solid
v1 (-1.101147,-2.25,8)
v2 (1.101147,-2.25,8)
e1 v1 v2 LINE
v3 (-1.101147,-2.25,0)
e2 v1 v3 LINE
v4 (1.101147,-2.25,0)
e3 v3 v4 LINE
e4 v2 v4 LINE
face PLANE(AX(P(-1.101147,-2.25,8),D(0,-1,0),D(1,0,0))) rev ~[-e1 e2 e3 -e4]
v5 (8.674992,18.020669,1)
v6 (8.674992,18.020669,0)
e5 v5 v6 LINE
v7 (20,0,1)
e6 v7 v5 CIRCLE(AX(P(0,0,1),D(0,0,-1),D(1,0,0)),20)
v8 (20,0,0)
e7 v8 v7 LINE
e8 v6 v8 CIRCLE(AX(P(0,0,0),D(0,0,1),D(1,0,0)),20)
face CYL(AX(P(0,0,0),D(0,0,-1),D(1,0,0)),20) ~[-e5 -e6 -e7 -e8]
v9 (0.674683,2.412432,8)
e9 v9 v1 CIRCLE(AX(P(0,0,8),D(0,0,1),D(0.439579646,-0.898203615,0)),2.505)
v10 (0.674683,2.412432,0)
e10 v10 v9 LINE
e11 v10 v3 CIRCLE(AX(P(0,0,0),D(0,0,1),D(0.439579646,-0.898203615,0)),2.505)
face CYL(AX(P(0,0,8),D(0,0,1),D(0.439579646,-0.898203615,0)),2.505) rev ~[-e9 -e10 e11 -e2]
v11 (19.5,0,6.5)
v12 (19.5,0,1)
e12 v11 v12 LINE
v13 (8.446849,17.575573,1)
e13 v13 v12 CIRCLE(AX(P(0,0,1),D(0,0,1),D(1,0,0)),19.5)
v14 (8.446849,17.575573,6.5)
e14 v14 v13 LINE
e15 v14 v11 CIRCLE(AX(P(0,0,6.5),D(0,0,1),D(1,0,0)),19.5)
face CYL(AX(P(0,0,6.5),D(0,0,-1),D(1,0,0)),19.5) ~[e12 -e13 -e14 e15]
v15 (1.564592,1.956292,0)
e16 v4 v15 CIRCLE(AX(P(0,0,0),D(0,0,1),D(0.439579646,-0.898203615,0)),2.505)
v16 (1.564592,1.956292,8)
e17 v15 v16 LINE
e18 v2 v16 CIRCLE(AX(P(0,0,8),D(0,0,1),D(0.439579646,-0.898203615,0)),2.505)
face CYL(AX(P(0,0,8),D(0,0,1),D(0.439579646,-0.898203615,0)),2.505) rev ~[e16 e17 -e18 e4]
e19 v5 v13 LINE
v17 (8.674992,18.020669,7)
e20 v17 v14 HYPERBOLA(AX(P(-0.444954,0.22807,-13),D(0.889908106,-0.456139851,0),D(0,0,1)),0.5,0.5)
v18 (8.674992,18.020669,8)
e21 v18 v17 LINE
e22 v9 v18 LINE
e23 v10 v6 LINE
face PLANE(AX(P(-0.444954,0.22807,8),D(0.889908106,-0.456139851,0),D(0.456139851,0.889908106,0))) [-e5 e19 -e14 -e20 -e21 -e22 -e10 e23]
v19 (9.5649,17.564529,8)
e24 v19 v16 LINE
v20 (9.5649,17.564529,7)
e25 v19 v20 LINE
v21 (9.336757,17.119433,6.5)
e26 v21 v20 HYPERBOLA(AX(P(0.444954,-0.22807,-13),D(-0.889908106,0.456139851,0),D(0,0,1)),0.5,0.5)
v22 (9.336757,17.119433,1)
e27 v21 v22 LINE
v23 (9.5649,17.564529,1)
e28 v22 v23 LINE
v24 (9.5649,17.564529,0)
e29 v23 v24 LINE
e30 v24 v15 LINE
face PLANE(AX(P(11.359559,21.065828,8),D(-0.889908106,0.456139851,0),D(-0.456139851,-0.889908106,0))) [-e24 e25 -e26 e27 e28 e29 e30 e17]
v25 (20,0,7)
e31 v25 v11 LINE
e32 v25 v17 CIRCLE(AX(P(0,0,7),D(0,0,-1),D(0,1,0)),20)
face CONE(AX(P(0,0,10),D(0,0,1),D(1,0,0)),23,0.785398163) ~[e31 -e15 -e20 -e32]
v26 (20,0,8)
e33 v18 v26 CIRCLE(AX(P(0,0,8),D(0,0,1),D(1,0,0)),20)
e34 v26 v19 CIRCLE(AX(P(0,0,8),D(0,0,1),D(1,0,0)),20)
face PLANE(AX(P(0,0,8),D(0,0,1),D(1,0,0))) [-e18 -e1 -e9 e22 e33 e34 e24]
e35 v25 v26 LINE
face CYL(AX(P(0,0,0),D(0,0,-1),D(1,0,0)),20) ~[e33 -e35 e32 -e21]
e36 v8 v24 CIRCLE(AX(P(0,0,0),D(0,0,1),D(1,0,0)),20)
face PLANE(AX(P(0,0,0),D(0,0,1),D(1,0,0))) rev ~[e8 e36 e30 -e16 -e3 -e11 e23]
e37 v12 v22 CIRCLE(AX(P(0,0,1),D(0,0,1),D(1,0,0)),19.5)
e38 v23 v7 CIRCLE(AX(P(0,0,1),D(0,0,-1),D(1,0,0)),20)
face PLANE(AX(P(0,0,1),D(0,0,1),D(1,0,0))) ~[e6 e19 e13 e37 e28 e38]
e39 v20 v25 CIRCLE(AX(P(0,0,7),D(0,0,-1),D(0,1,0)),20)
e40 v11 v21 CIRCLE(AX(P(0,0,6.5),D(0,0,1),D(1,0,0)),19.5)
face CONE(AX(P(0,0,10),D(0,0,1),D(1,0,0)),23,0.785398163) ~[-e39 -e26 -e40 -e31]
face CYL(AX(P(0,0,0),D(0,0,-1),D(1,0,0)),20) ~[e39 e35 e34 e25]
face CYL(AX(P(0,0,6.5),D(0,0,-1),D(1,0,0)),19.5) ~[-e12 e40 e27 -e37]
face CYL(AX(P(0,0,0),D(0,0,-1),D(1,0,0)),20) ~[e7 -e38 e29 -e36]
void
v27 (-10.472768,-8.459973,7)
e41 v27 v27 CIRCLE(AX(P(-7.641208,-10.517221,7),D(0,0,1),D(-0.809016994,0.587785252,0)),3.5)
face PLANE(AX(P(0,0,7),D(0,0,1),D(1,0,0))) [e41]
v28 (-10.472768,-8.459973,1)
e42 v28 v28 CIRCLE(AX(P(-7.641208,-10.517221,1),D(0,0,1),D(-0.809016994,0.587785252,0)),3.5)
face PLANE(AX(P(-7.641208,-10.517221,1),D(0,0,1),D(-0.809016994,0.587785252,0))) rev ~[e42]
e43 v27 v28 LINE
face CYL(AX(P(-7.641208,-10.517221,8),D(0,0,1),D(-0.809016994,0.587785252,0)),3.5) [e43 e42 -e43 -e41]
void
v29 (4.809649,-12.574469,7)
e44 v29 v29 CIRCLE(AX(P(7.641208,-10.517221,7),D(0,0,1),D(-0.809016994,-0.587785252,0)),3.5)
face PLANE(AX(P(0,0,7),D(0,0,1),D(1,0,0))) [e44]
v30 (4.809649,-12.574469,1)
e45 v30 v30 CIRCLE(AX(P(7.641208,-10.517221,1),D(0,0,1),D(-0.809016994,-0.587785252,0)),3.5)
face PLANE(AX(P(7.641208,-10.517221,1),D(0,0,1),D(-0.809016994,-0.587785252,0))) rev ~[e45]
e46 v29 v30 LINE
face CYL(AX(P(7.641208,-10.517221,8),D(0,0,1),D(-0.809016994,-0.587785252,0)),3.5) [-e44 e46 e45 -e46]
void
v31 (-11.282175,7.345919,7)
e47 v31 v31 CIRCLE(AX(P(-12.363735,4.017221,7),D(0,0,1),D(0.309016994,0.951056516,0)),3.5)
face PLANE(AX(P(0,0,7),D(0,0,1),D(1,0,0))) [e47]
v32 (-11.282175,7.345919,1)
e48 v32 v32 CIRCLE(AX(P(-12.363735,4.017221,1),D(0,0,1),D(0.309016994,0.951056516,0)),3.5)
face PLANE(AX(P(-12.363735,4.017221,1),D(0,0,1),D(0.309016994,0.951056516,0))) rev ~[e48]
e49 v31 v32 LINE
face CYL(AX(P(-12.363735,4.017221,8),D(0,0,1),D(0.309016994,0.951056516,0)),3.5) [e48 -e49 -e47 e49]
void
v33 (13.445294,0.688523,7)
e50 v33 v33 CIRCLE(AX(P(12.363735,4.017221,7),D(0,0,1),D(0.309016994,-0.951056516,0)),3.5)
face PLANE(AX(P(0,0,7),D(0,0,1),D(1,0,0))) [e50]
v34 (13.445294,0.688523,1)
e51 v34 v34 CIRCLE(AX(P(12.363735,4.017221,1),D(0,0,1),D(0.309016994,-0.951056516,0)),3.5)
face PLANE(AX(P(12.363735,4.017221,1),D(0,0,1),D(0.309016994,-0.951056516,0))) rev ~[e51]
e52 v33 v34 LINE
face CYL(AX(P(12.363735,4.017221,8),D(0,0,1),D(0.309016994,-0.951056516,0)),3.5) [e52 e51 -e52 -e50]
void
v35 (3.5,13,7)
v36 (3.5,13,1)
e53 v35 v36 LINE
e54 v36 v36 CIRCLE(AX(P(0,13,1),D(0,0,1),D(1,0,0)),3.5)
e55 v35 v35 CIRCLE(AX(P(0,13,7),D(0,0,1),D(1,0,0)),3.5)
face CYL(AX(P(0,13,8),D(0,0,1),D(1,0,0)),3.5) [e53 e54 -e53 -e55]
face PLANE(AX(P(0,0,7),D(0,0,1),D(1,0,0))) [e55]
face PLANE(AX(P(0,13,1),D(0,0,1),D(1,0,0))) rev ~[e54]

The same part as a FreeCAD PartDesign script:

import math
import FreeCAD as App
import Part
import Sketcher
from FreeCAD import Vector
Q = App.Units.Quantity


def add_polygon(sketch, points):
    """Adds a closed chain of lines whose ends are joined by coincident constraints."""
    first, n = sketch.GeometryCount, len(points)
    for a, b in zip(points, points[1:] + points[:1]):
        sketch.addGeometry(Part.LineSegment(App.Vector(*a, 0), App.Vector(*b, 0)), False)
    for i in range(n):
        sketch.addConstraint(Sketcher.Constraint("Coincident", first + i, 2, first + (i + 1) % n, 1))

doc = App.newDocument("Part")
params = doc.addObject("Spreadsheet::Sheet", "Params")
for row, (alias, value) in enumerate([
    ("sketch1_diameter", "40 mm"),
    ("pad1_length", "8 mm"),
    ("sketch3_height", "9 mm"),
    ("sketch3_width", "3.5 mm"),
    ("groove_angle", "360 deg"),
    ("sketch4_diameter", "7 mm"),
    ("pocket2_length", "7 mm"),
    ("pocket3_length", "0.5 mm"),
    ("pad2_length", "1 mm"),
    ("sketch7_length", "1 mm"),
], start=1):
    params.set(f"A{row}", alias)
    params.set(f"B{row}", "=" + value)
    params.setAlias(f"B{row}", alias)

body = doc.addObject("PartDesign::Body", "Body")

# Sketch on XY plane
sketch1 = body.newObject("Sketcher::SketchObject", "Sketch")
sketch1.AttachmentSupport = (doc.getObject("XY_Plane"), [""])
sketch1.MapMode = "FlatFace"
sketch1.addGeometry(Part.Circle(Vector(0, 0, 0), Vector(0, 0, 1), 20), False)
sketch1.addConstraint([
    Sketcher.Constraint("Coincident", 0, 3, -1, 1),
    Sketcher.Constraint("Diameter", 0, Q("40 mm")),
])
sketch1.setExpression("Constraints[1]", "Params.sketch1_diameter")
pad1 = body.newObject("PartDesign::Pad", "Pad")
pad1.Profile = sketch1
pad1.setExpression("Length", "Params.pad1_length")

# Sketch on XY plane
sketch2 = body.newObject("Sketcher::SketchObject", "Sketch001")
sketch2.AttachmentSupport = (doc.getObject("XY_Plane"), [""])
sketch2.MapMode = "FlatFace"
sketch2.AttachmentOffset = App.Placement(Vector(0, 0, 8), App.Rotation())
sketch2.addGeometry([
    Part.ArcOfCircle(Part.Circle(Vector(0, 0, 0), Vector(0, 0, 1), 2.505), math.radians(-63.922936), math.radians(243.922936)),
    Part.LineSegment(Vector(-1.101147, -2.25, 0), Vector(1.101147, -2.25, 0)),
], False)
sketch2.addConstraint([
    Sketcher.Constraint("Coincident", 0, 1, 1, 2),
    Sketcher.Constraint("Coincident", 1, 1, 0, 2),
    Sketcher.Constraint("Horizontal", 1),
    Sketcher.Constraint("Coincident", 0, 3, -1, 1),
    Sketcher.Constraint("Radius", 0, Q("2.505 mm")),
    Sketcher.Constraint("DistanceY", 0, 1, -1, 1, Q("2.25 mm")),
])
pocket1 = body.newObject("PartDesign::Pocket", "Pocket")
pocket1.Profile = sketch2
pocket1.Type = "ThroughAll"

# Sketch on XZ plane
sketch3 = body.newObject("Sketcher::SketchObject", "Sketch002")
sketch3.AttachmentSupport = (doc.getObject("XZ_Plane"), [""])
sketch3.MapMode = "FlatFace"
add_polygon(sketch3, [(19.5, 6.5), (19.5, 1), (23, 1), (23, 10)])  # lines 0-3
sketch3.addConstraint([
    Sketcher.Constraint("Vertical", 0),
    Sketcher.Constraint("Horizontal", 1),
    Sketcher.Constraint("Vertical", 2),
    Sketcher.Constraint("DistanceY", 2, 1, 2, 2, Q("9 mm")),
    Sketcher.Constraint("Angle", 3, Q("-135 deg")),
    Sketcher.Constraint("DistanceX", 1, 1, 1, 2, Q("3.5 mm")),
    Sketcher.Constraint("DistanceY", -1, 1, 0, 2, Q("1 mm")),
    Sketcher.Constraint("DistanceX", -1, 1, 1, 2, Q("23 mm")),
])
sketch3.setExpression("Constraints[7]", "Params.sketch3_height")
sketch3.setExpression("Constraints[9]", "Params.sketch3_width")
groove = body.newObject("PartDesign::Groove", "Groove")
groove.Profile = sketch3
groove.ReferenceAxis = (sketch3, ["V_Axis"])
groove.setExpression("Angle", "Params.groove_angle")

# Sketch on XY plane
sketch4 = body.newObject("Sketcher::SketchObject", "Sketch003")
sketch4.AttachmentSupport = (doc.getObject("XY_Plane"), [""])
sketch4.MapMode = "FlatFace"
sketch4.AttachmentOffset = App.Placement(Vector(0, 0, 8), App.Rotation())
sketch4.addGeometry(Part.Circle(Vector(0, 13, 0), Vector(0, 0, 1), 3.5), False)
sketch4.addConstraint([
    Sketcher.Constraint("PointOnObject", 0, 3, -2),
    Sketcher.Constraint("Diameter", 0, Q("7 mm")),
    Sketcher.Constraint("DistanceY", -1, 1, 0, 3, Q("13 mm")),
])
sketch4.setExpression("Constraints[1]", "Params.sketch4_diameter")
pocket2 = body.newObject("PartDesign::Pocket", "Pocket001")
pocket2.Profile = sketch4
pocket2.setExpression("Length", "Params.pocket2_length")
doc.recompute()

polarpattern = body.newObject("PartDesign::PolarPattern", "PolarPattern")
polarpattern.Originals = [pocket2]
polarpattern.Axis = (doc.getObject("Z_Axis"), [""])
polarpattern.Angle = 360
polarpattern.Occurrences = 5
body.Tip = polarpattern

# Sketch on XY plane
sketch5 = body.newObject("Sketcher::SketchObject", "Sketch004")
sketch5.AttachmentSupport = (doc.getObject("XY_Plane"), [""])
sketch5.MapMode = "FlatFace"
sketch5.AttachmentOffset = App.Placement(Vector(0, 0, 8), App.Rotation())
sketch5.addGeometry(Part.Circle(Vector(-5.881012, 7.168965, 0), Vector(0, 0, 1), 1.995724), False)
sketch5.addConstraint([
    Sketcher.Constraint("Diameter", 0, Q("3.991448 mm")),
    Sketcher.Constraint("DistanceX", 0, 3, -1, 1, Q("5.881012 mm")),
    Sketcher.Constraint("DistanceY", -1, 1, 0, 3, Q("7.168965 mm")),
])
pocket3 = body.newObject("PartDesign::Pocket", "Pocket002")
pocket3.Profile = sketch5
pocket3.setExpression("Length", "Params.pocket3_length")

# Sketch on XY plane
sketch6 = body.newObject("Sketcher::SketchObject", "Sketch005")
sketch6.AttachmentSupport = (doc.getObject("XY_Plane"), [""])
sketch6.MapMode = "FlatFace"
sketch6.AttachmentOffset = App.Placement(Vector(0, 0, 8), App.Rotation())
sketch6.addGeometry([
    Part.Circle(Vector(0, 0, 0), Vector(0, 0, 1), 17.476315),
    Part.Circle(Vector(0, 0, 0), Vector(0, 0, 1), 3.403878),
], False)
sketch6.addConstraint([
    Sketcher.Constraint("Coincident", 0, 3, -1, 1),
    Sketcher.Constraint("Coincident", 1, 3, -1, 1),
    Sketcher.Constraint("Diameter", 0, Q("34.95263 mm")),
    Sketcher.Constraint("Diameter", 1, Q("6.807756 mm")),
])
pad2 = body.newObject("PartDesign::Pad", "Pad001")
pad2.Profile = sketch6
pad2.setExpression("Length", "Params.pad2_length")
pad2.Reversed = True

# Sketch on XY plane
sketch7 = body.newObject("Sketcher::SketchObject", "Sketch006")
sketch7.AttachmentSupport = (doc.getObject("XY_Plane"), [""])
sketch7.MapMode = "FlatFace"
sketch7.AttachmentOffset = App.Placement(Vector(0, 0, 8), App.Rotation())
add_polygon(sketch7, [(-0.444954, 0.22807), (0.444954, -0.22807), (11.359559, 21.065828), (10.469651, 21.521968)])  # lines 0-3
sketch7.addConstraint([
    Sketcher.Constraint("Symmetric", 0, 2, 3, 2, -1, 1),
    Sketcher.Constraint("Perpendicular", 0, 1),
    Sketcher.Constraint("Perpendicular", 1, 2),
    Sketcher.Constraint("Perpendicular", 2, 3),
    Sketcher.Constraint("Distance", 0, Q("1 mm")),
    Sketcher.Constraint("Distance", 1, Q("23.928199 mm")),
    Sketcher.Constraint("DistanceY", 3, 2, 2, 2, Q("21.293898 mm")),
])
sketch7.setExpression("Constraints[8]", "Params.sketch7_length")
pocket4 = body.newObject("PartDesign::Pocket", "Pocket003")
pocket4.Profile = sketch7
pocket4.Type = "ThroughAll"

doc.recompute()
